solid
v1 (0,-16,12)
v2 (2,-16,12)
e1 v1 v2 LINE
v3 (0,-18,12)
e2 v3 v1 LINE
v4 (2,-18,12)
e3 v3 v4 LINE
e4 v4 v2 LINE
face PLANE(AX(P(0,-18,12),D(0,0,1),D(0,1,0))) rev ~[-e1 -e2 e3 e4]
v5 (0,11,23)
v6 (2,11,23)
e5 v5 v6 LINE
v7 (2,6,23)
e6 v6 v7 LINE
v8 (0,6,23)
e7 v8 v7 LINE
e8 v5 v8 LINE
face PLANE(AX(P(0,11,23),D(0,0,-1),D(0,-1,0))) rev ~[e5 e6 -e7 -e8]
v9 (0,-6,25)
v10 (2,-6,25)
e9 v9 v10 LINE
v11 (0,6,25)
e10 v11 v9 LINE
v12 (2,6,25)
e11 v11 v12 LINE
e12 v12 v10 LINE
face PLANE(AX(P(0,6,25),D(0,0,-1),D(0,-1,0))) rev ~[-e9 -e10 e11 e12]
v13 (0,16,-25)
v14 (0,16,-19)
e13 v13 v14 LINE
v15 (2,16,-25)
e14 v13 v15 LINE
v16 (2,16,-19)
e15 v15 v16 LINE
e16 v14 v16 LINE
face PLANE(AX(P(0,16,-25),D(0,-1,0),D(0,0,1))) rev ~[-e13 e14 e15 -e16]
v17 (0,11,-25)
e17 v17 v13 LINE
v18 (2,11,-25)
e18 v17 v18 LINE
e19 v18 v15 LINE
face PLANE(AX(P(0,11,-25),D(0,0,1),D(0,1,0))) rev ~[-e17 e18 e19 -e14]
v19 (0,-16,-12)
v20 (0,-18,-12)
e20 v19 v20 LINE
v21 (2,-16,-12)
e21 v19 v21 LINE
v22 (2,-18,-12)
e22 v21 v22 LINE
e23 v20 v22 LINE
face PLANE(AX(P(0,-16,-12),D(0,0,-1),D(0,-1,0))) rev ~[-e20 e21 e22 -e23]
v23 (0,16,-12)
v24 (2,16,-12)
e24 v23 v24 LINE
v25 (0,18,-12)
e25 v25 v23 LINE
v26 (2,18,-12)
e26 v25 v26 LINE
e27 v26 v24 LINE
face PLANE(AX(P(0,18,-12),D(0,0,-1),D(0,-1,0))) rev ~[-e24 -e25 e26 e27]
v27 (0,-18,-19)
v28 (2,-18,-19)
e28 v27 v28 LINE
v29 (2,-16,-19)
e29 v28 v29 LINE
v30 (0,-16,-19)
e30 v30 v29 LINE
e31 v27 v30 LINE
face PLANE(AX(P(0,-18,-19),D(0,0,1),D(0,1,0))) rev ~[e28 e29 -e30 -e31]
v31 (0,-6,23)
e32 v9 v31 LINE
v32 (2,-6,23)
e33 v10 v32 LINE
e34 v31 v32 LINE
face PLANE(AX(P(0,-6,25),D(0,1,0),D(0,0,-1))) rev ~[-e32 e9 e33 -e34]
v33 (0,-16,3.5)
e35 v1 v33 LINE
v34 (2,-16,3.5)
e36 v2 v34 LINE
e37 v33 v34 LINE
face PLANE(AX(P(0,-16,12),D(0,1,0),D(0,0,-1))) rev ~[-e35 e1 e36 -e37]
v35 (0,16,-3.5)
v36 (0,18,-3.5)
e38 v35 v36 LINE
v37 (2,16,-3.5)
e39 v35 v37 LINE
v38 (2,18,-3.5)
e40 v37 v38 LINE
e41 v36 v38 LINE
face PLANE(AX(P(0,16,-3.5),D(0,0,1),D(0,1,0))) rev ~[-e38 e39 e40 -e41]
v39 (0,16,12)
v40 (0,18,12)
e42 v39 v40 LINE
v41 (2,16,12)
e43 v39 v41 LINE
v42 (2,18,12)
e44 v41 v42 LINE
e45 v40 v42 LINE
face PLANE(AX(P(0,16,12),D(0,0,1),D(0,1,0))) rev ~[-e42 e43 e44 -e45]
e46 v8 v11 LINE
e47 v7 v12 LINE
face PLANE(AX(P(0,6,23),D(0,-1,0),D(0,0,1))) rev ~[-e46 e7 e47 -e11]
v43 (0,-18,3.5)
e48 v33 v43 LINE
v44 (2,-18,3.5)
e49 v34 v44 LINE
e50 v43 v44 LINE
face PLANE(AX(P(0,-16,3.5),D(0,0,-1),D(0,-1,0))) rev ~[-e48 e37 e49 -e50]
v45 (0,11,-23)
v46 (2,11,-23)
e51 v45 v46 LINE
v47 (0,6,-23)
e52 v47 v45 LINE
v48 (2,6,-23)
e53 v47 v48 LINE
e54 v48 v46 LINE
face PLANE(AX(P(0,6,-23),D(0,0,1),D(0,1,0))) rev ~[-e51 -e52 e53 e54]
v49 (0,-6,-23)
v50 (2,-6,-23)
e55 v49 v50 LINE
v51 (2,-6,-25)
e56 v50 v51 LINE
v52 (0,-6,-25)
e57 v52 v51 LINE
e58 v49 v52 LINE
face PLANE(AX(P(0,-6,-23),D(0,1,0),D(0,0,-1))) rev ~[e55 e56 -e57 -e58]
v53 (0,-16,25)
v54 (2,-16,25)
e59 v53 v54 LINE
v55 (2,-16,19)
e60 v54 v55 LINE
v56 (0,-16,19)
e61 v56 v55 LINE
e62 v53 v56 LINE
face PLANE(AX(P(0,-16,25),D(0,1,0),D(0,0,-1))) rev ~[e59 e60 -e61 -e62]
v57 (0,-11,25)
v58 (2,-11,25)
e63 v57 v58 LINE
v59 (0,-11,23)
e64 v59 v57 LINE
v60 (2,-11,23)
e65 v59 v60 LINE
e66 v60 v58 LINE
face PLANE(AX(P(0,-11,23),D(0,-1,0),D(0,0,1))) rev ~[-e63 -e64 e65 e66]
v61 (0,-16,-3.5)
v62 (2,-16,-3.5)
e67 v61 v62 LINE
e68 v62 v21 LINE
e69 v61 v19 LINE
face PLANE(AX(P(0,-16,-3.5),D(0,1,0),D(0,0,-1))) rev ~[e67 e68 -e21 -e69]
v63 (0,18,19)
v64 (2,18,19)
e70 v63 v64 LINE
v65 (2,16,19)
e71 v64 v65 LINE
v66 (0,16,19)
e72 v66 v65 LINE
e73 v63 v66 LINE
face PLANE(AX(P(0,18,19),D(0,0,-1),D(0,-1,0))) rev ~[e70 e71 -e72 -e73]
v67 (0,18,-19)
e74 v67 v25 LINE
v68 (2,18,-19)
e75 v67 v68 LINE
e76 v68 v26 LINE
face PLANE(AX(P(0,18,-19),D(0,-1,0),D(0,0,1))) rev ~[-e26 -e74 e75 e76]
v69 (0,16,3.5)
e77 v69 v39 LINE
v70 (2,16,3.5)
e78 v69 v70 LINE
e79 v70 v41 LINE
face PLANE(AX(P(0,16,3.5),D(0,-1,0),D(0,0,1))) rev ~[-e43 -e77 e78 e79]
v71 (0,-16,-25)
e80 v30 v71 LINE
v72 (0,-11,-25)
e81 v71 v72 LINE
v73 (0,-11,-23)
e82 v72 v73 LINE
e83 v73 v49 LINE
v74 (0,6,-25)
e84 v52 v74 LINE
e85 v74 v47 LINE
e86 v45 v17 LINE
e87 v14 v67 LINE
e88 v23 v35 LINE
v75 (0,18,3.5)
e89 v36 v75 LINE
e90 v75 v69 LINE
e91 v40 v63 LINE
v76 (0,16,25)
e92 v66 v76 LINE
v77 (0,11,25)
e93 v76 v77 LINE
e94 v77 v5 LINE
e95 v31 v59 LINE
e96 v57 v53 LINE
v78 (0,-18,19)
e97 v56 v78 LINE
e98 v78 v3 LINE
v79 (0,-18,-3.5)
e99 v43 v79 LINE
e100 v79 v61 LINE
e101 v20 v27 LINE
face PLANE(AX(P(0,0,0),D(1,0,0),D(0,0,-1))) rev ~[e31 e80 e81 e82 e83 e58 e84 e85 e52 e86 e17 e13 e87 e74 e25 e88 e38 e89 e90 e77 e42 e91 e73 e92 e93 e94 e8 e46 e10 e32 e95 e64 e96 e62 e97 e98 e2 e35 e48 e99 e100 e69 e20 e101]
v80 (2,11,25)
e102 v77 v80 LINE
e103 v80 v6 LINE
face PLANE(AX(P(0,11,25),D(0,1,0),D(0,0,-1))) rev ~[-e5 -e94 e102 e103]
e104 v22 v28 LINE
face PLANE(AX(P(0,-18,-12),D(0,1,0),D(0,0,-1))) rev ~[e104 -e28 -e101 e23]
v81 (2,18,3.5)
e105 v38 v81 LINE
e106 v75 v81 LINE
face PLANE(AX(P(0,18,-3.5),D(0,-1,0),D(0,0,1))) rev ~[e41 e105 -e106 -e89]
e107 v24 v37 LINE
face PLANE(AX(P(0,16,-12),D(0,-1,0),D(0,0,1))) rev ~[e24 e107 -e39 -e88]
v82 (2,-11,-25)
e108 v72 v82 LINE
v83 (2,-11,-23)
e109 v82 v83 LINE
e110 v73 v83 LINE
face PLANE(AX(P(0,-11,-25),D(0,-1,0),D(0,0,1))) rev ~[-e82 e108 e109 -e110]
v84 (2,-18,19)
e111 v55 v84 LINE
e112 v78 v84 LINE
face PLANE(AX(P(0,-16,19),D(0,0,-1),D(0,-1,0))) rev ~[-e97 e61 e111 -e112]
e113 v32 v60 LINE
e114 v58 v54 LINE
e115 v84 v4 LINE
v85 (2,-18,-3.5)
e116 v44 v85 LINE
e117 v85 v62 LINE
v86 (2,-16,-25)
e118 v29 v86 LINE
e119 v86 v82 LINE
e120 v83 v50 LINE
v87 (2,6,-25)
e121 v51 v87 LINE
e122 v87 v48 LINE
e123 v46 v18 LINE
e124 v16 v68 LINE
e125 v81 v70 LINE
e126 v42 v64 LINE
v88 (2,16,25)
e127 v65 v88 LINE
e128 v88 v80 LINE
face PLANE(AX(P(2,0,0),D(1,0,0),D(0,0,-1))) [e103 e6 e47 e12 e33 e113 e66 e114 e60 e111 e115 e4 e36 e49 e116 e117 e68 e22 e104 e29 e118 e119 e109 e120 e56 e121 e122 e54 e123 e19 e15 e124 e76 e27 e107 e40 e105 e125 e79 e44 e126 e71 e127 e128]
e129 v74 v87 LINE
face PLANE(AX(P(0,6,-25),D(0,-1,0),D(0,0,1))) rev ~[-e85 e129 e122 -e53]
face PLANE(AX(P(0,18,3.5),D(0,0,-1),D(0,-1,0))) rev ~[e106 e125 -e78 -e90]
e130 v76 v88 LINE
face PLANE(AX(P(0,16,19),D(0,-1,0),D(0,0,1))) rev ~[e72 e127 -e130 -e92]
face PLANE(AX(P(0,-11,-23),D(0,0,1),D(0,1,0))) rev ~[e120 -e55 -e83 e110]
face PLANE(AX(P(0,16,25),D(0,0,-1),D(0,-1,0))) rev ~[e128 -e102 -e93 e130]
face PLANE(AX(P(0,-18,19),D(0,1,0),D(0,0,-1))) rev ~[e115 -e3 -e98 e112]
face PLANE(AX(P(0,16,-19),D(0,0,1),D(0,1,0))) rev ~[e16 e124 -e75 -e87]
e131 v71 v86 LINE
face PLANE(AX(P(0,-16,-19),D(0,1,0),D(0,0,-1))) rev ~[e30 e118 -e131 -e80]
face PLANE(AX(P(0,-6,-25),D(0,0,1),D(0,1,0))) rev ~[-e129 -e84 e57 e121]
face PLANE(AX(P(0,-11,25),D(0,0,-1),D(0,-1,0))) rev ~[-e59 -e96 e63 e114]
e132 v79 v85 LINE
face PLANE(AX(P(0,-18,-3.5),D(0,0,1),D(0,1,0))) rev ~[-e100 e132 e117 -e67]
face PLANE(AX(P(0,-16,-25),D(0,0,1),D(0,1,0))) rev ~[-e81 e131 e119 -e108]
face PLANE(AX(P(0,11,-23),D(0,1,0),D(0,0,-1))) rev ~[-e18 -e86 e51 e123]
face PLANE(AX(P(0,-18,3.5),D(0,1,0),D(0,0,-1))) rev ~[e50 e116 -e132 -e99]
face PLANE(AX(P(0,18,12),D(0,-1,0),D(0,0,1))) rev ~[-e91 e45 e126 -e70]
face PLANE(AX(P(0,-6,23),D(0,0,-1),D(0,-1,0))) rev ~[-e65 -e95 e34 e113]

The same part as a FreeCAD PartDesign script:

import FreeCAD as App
import Part
import Sketcher
from FreeCAD import Vector
Q = App.Units.Quantity

doc = App.newDocument("Part")
body = doc.addObject("PartDesign::Body", "Body")

# Sketch on YZ plane
sketch1 = doc.addObject("Sketcher::SketchObject", "Sketch")
body.addObject(sketch1)
sketch1.AttachmentSupport = (doc.YZ_Plane, [""])
sketch1.MapMode = "FlatFace"
sketch1.addGeometry(Part.LineSegment(Vector(16, 19, 0), Vector(16, 25, 0)), False)
sketch1.addGeometry(Part.LineSegment(Vector(16, 25, 0), Vector(11, 25, 0)), False)
sketch1.addGeometry(Part.LineSegment(Vector(11, 25, 0), Vector(11, 23, 0)), False)
sketch1.addGeometry(Part.LineSegment(Vector(11, 23, 0), Vector(6, 23, 0)), False)
sketch1.addGeometry(Part.LineSegment(Vector(6, 23, 0), Vector(6, 25, 0)), False)
sketch1.addGeometry(Part.LineSegment(Vector(6, 25, 0), Vector(-6, 25, 0)), False)
sketch1.addGeometry(Part.LineSegment(Vector(-6, 25, 0), Vector(-6, 23, 0)), False)
sketch1.addGeometry(Part.LineSegment(Vector(-6, 23, 0), Vector(-11, 23, 0)), False)
sketch1.addGeometry(Part.LineSegment(Vector(-11, 23, 0), Vector(-11, 25, 0)), False)
sketch1.addGeometry(Part.LineSegment(Vector(-11, 25, 0), Vector(-16, 25, 0)), False)
sketch1.addGeometry(Part.LineSegment(Vector(-16, 25, 0), Vector(-16, 19, 0)), False)
sketch1.addGeometry(Part.LineSegment(Vector(-16, 19, 0), Vector(-18, 19, 0)), False)
sketch1.addGeometry(Part.LineSegment(Vector(-18, 19, 0), Vector(-18, 12, 0)), False)
sketch1.addGeometry(Part.LineSegment(Vector(-18, 12, 0), Vector(-16, 12, 0)), False)
sketch1.addGeometry(Part.LineSegment(Vector(-16, 12, 0), Vector(-16, 3.5, 0)), False)
sketch1.addGeometry(Part.LineSegment(Vector(-16, 3.5, 0), Vector(-18, 3.5, 0)), False)
sketch1.addGeometry(Part.LineSegment(Vector(-18, 3.5, 0), Vector(-18, -3.5, 0)), False)
sketch1.addGeometry(Part.LineSegment(Vector(-18, -3.5, 0), Vector(-16, -3.5, 0)), False)
sketch1.addGeometry(Part.LineSegment(Vector(-16, -3.5, 0), Vector(-16, -12, 0)), False)
sketch1.addGeometry(Part.LineSegment(Vector(-16, -12, 0), Vector(-18, -12, 0)), False)
sketch1.addGeometry(Part.LineSegment(Vector(-18, -12, 0), Vector(-18, -19, 0)), False)
sketch1.addGeometry(Part.LineSegment(Vector(-18, -19, 0), Vector(-16, -19, 0)), False)
sketch1.addGeometry(Part.LineSegment(Vector(-16, -19, 0), Vector(-16, -25, 0)), False)
sketch1.addGeometry(Part.LineSegment(Vector(-16, -25, 0), Vector(-11, -25, 0)), False)
sketch1.addGeometry(Part.LineSegment(Vector(-11, -25, 0), Vector(-11, -23, 0)), False)
sketch1.addGeometry(Part.LineSegment(Vector(-11, -23, 0), Vector(-6, -23, 0)), False)
sketch1.addGeometry(Part.LineSegment(Vector(-6, -23, 0), Vector(-6, -25, 0)), False)
sketch1.addGeometry(Part.LineSegment(Vector(-6, -25, 0), Vector(6, -25, 0)), False)
sketch1.addGeometry(Part.LineSegment(Vector(6, -25, 0), Vector(6, -23, 0)), False)
sketch1.addGeometry(Part.LineSegment(Vector(6, -23, 0), Vector(11, -23, 0)), False)
sketch1.addGeometry(Part.LineSegment(Vector(11, -23, 0), Vector(11, -25, 0)), False)
sketch1.addGeometry(Part.LineSegment(Vector(11, -25, 0), Vector(16, -25, 0)), False)
sketch1.addGeometry(Part.LineSegment(Vector(16, -25, 0), Vector(16, -19, 0)), False)
sketch1.addGeometry(Part.LineSegment(Vector(16, -19, 0), Vector(18, -19, 0)), False)
sketch1.addGeometry(Part.LineSegment(Vector(18, -19, 0), Vector(18, -12, 0)), False)
sketch1.addGeometry(Part.LineSegment(Vector(18, -12, 0), Vector(16, -12, 0)), False)
sketch1.addGeometry(Part.LineSegment(Vector(16, -12, 0), Vector(16, -3.5, 0)), False)
sketch1.addGeometry(Part.LineSegment(Vector(16, -3.5, 0), Vector(18, -3.5, 0)), False)
sketch1.addGeometry(Part.LineSegment(Vector(18, -3.5, 0), Vector(18, 3.5, 0)), False)
sketch1.addGeometry(Part.LineSegment(Vector(18, 3.5, 0), Vector(16, 3.5, 0)), False)
sketch1.addGeometry(Part.LineSegment(Vector(16, 3.5, 0), Vector(16, 12, 0)), False)
sketch1.addGeometry(Part.LineSegment(Vector(16, 12, 0), Vector(18, 12, 0)), False)
sketch1.addGeometry(Part.LineSegment(Vector(18, 12, 0), Vector(18, 19, 0)), False)
sketch1.addGeometry(Part.LineSegment(Vector(18, 19, 0), Vector(16, 19, 0)), False)
sketch1.addConstraint(Sketcher.Constraint("Coincident", 0, 2, 1, 1))
sketch1.addConstraint(Sketcher.Constraint("Coincident", 1, 2, 2, 1))
sketch1.addConstraint(Sketcher.Constraint("Coincident", 2, 2, 3, 1))
sketch1.addConstraint(Sketcher.Constraint("Coincident", 3, 2, 4, 1))
sketch1.addConstraint(Sketcher.Constraint("Coincident", 4, 2, 5, 1))
sketch1.addConstraint(Sketcher.Constraint("Coincident", 5, 2, 6, 1))
sketch1.addConstraint(Sketcher.Constraint("Coincident", 6, 2, 7, 1))
sketch1.addConstraint(Sketcher.Constraint("Coincident", 7, 2, 8, 1))
sketch1.addConstraint(Sketcher.Constraint("Coincident", 8, 2, 9, 1))
sketch1.addConstraint(Sketcher.Constraint("Coincident", 9, 2, 10, 1))
sketch1.addConstraint(Sketcher.Constraint("Coincident", 10, 2, 11, 1))
sketch1.addConstraint(Sketcher.Constraint("Coincident", 11, 2, 12, 1))
sketch1.addConstraint(Sketcher.Constraint("Coincident", 12, 2, 13, 1))
sketch1.addConstraint(Sketcher.Constraint("Coincident", 13, 2, 14, 1))
sketch1.addConstraint(Sketcher.Constraint("Coincident", 14, 2, 15, 1))
sketch1.addConstraint(Sketcher.Constraint("Coincident", 15, 2, 16, 1))
sketch1.addConstraint(Sketcher.Constraint("Coincident", 16, 2, 17, 1))
sketch1.addConstraint(Sketcher.Constraint("Coincident", 17, 2, 18, 1))
sketch1.addConstraint(Sketcher.Constraint("Coincident", 18, 2, 19, 1))
sketch1.addConstraint(Sketcher.Constraint("Coincident", 19, 2, 20, 1))
sketch1.addConstraint(Sketcher.Constraint("Coincident", 20, 2, 21, 1))
sketch1.addConstraint(Sketcher.Constraint("Coincident", 21, 2, 22, 1))
sketch1.addConstraint(Sketcher.Constraint("Coincident", 22, 2, 23, 1))
sketch1.addConstraint(Sketcher.Constraint("Coincident", 23, 2, 24, 1))
sketch1.addConstraint(Sketcher.Constraint("Coincident", 24, 2, 25, 1))
sketch1.addConstraint(Sketcher.Constraint("Coincident", 25, 2, 26, 1))
sketch1.addConstraint(Sketcher.Constraint("Coincident", 26, 2, 27, 1))
sketch1.addConstraint(Sketcher.Constraint("Coincident", 27, 2, 28, 1))
sketch1.addConstraint(Sketcher.Constraint("Coincident", 28, 2, 29, 1))
sketch1.addConstraint(Sketcher.Constraint("Coincident", 29, 2, 30, 1))
sketch1.addConstraint(Sketcher.Constraint("Coincident", 30, 2, 31, 1))
sketch1.addConstraint(Sketcher.Constraint("Coincident", 31, 2, 32, 1))
sketch1.addConstraint(Sketcher.Constraint("Coincident", 32, 2, 33, 1))
sketch1.addConstraint(Sketcher.Constraint("Coincident", 33, 2, 34, 1))
sketch1.addConstraint(Sketcher.Constraint("Coincident", 34, 2, 35, 1))
sketch1.addConstraint(Sketcher.Constraint("Coincident", 35, 2, 36, 1))
sketch1.addConstraint(Sketcher.Constraint("Coincident", 36, 2, 37, 1))
sketch1.addConstraint(Sketcher.Constraint("Coincident", 37, 2, 38, 1))
sketch1.addConstraint(Sketcher.Constraint("Coincident", 38, 2, 39, 1))
sketch1.addConstraint(Sketcher.Constraint("Coincident", 39, 2, 40, 1))
sketch1.addConstraint(Sketcher.Constraint("Coincident", 40, 2, 41, 1))
sketch1.addConstraint(Sketcher.Constraint("Coincident", 41, 2, 42, 1))
sketch1.addConstraint(Sketcher.Constraint("Coincident", 42, 2, 43, 1))
sketch1.addConstraint(Sketcher.Constraint("Coincident", 43, 2, 0, 1))
sketch1.addConstraint(Sketcher.Constraint("Vertical", 0))
sketch1.addConstraint(Sketcher.Constraint("Horizontal", 1))
sketch1.addConstraint(Sketcher.Constraint("Vertical", 2))
sketch1.addConstraint(Sketcher.Constraint("Horizontal", 3))
sketch1.addConstraint(Sketcher.Constraint("Vertical", 4))
sketch1.addConstraint(Sketcher.Constraint("Horizontal", 5))
sketch1.addConstraint(Sketcher.Constraint("Vertical", 6))
sketch1.addConstraint(Sketcher.Constraint("Horizontal", 7))
sketch1.addConstraint(Sketcher.Constraint("Vertical", 8))
sketch1.addConstraint(Sketcher.Constraint("Horizontal", 9))
sketch1.addConstraint(Sketcher.Constraint("Vertical", 10))
sketch1.addConstraint(Sketcher.Constraint("Horizontal", 11))
sketch1.addConstraint(Sketcher.Constraint("Vertical", 12))
sketch1.addConstraint(Sketcher.Constraint("Horizontal", 13))
sketch1.addConstraint(Sketcher.Constraint("Vertical", 14))
sketch1.addConstraint(Sketcher.Constraint("Horizontal", 15))
sketch1.addConstraint(Sketcher.Constraint("Vertical", 16))
sketch1.addConstraint(Sketcher.Constraint("Horizontal", 17))
sketch1.addConstraint(Sketcher.Constraint("Vertical", 18))
sketch1.addConstraint(Sketcher.Constraint("Horizontal", 19))
sketch1.addConstraint(Sketcher.Constraint("Vertical", 20))
sketch1.addConstraint(Sketcher.Constraint("Horizontal", 21))
sketch1.addConstraint(Sketcher.Constraint("Vertical", 22))
sketch1.addConstraint(Sketcher.Constraint("Horizontal", 23))
sketch1.addConstraint(Sketcher.Constraint("Vertical", 24))
sketch1.addConstraint(Sketcher.Constraint("Horizontal", 25))
sketch1.addConstraint(Sketcher.Constraint("Vertical", 26))
sketch1.addConstraint(Sketcher.Constraint("Horizontal", 27))
sketch1.addConstraint(Sketcher.Constraint("Vertical", 28))
sketch1.addConstraint(Sketcher.Constraint("Horizontal", 29))
sketch1.addConstraint(Sketcher.Constraint("Vertical", 30))
sketch1.addConstraint(Sketcher.Constraint("Horizontal", 31))
sketch1.addConstraint(Sketcher.Constraint("Vertical", 32))
sketch1.addConstraint(Sketcher.Constraint("Horizontal", 33))
sketch1.addConstraint(Sketcher.Constraint("Vertical", 34))
sketch1.addConstraint(Sketcher.Constraint("Horizontal", 35))
sketch1.addConstraint(Sketcher.Constraint("Vertical", 36))
sketch1.addConstraint(Sketcher.Constraint("Horizontal", 37))
sketch1.addConstraint(Sketcher.Constraint("Vertical", 38))
sketch1.addConstraint(Sketcher.Constraint("Horizontal", 39))
sketch1.addConstraint(Sketcher.Constraint("Vertical", 40))
sketch1.addConstraint(Sketcher.Constraint("Horizontal", 41))
sketch1.addConstraint(Sketcher.Constraint("Vertical", 42))
sketch1.addConstraint(Sketcher.Constraint("Horizontal", 43))
sketch1.addConstraint(Sketcher.Constraint("Symmetric", 0, 2, 22, 2, -1, 1))
sketch1.addConstraint(Sketcher.Constraint("Symmetric", 2, 2, 24, 2, -1, 1))
sketch1.addConstraint(Sketcher.Constraint("Symmetric", 4, 2, 26, 2, -1, 1))
sketch1.addConstraint(Sketcher.Constraint("Symmetric", 6, 2, 28, 2, -1, 1))
sketch1.addConstraint(Sketcher.Constraint("Symmetric", 8, 2, 30, 2, -1, 1))
sketch1.addConstraint(Sketcher.Constraint("Symmetric", 10, 2, 32, 2, -1, 1))
sketch1.addConstraint(Sketcher.Constraint("Symmetric", 12, 2, 34, 2, -1, 1))
sketch1.addConstraint(Sketcher.Constraint("Symmetric", 14, 2, 36, 2, -1, 1))
sketch1.addConstraint(Sketcher.Constraint("Symmetric", 16, 2, 38, 2, -1, 1))
sketch1.addConstraint(Sketcher.Constraint("Symmetric", 18, 2, 40, 2, -1, 1))
sketch1.addConstraint(Sketcher.Constraint("Symmetric", 20, 2, 42, 2, -1, 1))
sketch1.addConstraint(Sketcher.Constraint("Symmetric", 3, 2, 6, 2, -2))
sketch1.addConstraint(Sketcher.Constraint("Symmetric", 1, 2, 8, 2, -2))
sketch1.addConstraint(Sketcher.Constraint("Symmetric", 21, 2, 32, 2, -2))
sketch1.addConstraint(Sketcher.Constraint("Symmetric", 19, 2, 34, 2, -2))
sketch1.addConstraint(Sketcher.Constraint("Symmetric", 17, 2, 36, 2, -2))
sketch1.addConstraint(Sketcher.Constraint("Horizontal", 1, 2, 4, 2))
sketch1.addConstraint(Sketcher.Constraint("Vertical", 10, 2, 13, 2))
sketch1.addConstraint(Sketcher.Constraint("Vertical", 12, 2, 15, 2))
sketch1.addConstraint(Sketcher.Constraint("Equal", 1, 3))
sketch1.addConstraint(Sketcher.Constraint("Equal", 43, 2))
sketch1.addConstraint(Sketcher.Constraint("Equal", 12, 16))
sketch1.addConstraint(Sketcher.Constraint("DistanceX", 1, 2, 1, 1, Q("5 mm")))
sketch1.addConstraint(Sketcher.Constraint("DistanceX", 5, 2, 5, 1, Q("12 mm")))
sketch1.addConstraint(Sketcher.Constraint("DistanceX", 11, 2, 11, 1, Q("2 mm")))
sketch1.addConstraint(Sketcher.Constraint("DistanceY", 0, 1, 0, 2, Q("6 mm")))
sketch1.addConstraint(Sketcher.Constraint("DistanceY", 12, 2, 12, 1, Q("7 mm")))
sketch1.addConstraint(Sketcher.Constraint("DistanceY", 14, 2, 14, 1, Q("8.5 mm")))
pad1 = doc.addObject("PartDesign::Pad", "Pad")
body.addObject(pad1)
pad1.Profile = sketch1
pad1.Length = 2

doc.recompute()
